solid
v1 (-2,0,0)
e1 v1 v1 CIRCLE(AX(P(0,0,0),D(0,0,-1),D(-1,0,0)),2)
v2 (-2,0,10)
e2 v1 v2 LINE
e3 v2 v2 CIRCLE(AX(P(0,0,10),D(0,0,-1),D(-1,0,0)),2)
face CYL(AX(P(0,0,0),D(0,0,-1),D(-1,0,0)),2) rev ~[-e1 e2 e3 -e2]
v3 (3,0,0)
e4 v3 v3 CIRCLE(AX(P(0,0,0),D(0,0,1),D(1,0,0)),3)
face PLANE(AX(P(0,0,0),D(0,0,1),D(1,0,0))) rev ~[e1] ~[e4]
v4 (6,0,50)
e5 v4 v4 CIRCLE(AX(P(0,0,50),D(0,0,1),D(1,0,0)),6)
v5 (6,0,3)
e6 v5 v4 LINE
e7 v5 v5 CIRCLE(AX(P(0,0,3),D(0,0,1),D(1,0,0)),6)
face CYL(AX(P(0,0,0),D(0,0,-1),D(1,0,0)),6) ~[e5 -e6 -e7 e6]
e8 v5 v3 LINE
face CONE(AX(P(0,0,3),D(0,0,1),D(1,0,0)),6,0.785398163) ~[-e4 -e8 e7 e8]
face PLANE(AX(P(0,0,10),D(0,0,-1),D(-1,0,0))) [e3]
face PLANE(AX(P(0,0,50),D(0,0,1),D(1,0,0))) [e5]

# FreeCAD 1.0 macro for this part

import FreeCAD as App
import Part
import Sketcher

V = App.Vector


def edges_at(feature, points):
    """Names of the edges that pass closest to the given points."""
    edges = feature.Shape.Edges
    near = lambda p: min(range(len(edges)), key=lambda i: edges[i].distToShape(Part.Vertex(*p))[0])
    return sorted({f"Edge{near(p) + 1}" for p in points})

doc = App.newDocument("Part")
body = doc.addObject("PartDesign::Body", "Body")

sketch1 = body.newObject("Sketcher::SketchObject", "Sketch")
sketch1.AttachmentSupport = (doc.getObject("XY_Plane"), [""])
sketch1.MapMode = "FlatFace"
sketch1.addGeometry(Part.Circle(V(0, 0, 0), V(0, 0, 1), 6), False)
sketch1.addConstraint([
    Sketcher.Constraint("Coincident", 0, 3, -1, 1),
    Sketcher.Constraint("Diameter", 0, 12.0),
])
pad1 = body.newObject("PartDesign::Pad", "Pad")
pad1.Profile = sketch1
pad1.Length = 50
doc.recompute()

chamfer = body.newObject("PartDesign::Chamfer", "Chamfer")
chamfer.Base = (pad1, edges_at(pad1, [(-6, 0, 0)]))
chamfer.Size = 3

sketch2 = body.newObject("Sketcher::SketchObject", "Sketch001")
sketch2.AttachmentSupport = (doc.getObject("XY_Plane"), [""])
sketch2.MapMode = "FlatFace"
sketch2.addGeometry(Part.Circle(V(0, 0, 0), V(0, 0, 1), 2), False)
sketch2.addConstraint([
    Sketcher.Constraint("Coincident", 0, 3, -1, 1),
    Sketcher.Constraint("Diameter", 0, 4.0),
])
pocket1 = body.newObject("PartDesign::Pocket", "Pocket")
pocket1.Profile = sketch2
pocket1.Length = 10
pocket1.Reversed = True

doc.recompute()
